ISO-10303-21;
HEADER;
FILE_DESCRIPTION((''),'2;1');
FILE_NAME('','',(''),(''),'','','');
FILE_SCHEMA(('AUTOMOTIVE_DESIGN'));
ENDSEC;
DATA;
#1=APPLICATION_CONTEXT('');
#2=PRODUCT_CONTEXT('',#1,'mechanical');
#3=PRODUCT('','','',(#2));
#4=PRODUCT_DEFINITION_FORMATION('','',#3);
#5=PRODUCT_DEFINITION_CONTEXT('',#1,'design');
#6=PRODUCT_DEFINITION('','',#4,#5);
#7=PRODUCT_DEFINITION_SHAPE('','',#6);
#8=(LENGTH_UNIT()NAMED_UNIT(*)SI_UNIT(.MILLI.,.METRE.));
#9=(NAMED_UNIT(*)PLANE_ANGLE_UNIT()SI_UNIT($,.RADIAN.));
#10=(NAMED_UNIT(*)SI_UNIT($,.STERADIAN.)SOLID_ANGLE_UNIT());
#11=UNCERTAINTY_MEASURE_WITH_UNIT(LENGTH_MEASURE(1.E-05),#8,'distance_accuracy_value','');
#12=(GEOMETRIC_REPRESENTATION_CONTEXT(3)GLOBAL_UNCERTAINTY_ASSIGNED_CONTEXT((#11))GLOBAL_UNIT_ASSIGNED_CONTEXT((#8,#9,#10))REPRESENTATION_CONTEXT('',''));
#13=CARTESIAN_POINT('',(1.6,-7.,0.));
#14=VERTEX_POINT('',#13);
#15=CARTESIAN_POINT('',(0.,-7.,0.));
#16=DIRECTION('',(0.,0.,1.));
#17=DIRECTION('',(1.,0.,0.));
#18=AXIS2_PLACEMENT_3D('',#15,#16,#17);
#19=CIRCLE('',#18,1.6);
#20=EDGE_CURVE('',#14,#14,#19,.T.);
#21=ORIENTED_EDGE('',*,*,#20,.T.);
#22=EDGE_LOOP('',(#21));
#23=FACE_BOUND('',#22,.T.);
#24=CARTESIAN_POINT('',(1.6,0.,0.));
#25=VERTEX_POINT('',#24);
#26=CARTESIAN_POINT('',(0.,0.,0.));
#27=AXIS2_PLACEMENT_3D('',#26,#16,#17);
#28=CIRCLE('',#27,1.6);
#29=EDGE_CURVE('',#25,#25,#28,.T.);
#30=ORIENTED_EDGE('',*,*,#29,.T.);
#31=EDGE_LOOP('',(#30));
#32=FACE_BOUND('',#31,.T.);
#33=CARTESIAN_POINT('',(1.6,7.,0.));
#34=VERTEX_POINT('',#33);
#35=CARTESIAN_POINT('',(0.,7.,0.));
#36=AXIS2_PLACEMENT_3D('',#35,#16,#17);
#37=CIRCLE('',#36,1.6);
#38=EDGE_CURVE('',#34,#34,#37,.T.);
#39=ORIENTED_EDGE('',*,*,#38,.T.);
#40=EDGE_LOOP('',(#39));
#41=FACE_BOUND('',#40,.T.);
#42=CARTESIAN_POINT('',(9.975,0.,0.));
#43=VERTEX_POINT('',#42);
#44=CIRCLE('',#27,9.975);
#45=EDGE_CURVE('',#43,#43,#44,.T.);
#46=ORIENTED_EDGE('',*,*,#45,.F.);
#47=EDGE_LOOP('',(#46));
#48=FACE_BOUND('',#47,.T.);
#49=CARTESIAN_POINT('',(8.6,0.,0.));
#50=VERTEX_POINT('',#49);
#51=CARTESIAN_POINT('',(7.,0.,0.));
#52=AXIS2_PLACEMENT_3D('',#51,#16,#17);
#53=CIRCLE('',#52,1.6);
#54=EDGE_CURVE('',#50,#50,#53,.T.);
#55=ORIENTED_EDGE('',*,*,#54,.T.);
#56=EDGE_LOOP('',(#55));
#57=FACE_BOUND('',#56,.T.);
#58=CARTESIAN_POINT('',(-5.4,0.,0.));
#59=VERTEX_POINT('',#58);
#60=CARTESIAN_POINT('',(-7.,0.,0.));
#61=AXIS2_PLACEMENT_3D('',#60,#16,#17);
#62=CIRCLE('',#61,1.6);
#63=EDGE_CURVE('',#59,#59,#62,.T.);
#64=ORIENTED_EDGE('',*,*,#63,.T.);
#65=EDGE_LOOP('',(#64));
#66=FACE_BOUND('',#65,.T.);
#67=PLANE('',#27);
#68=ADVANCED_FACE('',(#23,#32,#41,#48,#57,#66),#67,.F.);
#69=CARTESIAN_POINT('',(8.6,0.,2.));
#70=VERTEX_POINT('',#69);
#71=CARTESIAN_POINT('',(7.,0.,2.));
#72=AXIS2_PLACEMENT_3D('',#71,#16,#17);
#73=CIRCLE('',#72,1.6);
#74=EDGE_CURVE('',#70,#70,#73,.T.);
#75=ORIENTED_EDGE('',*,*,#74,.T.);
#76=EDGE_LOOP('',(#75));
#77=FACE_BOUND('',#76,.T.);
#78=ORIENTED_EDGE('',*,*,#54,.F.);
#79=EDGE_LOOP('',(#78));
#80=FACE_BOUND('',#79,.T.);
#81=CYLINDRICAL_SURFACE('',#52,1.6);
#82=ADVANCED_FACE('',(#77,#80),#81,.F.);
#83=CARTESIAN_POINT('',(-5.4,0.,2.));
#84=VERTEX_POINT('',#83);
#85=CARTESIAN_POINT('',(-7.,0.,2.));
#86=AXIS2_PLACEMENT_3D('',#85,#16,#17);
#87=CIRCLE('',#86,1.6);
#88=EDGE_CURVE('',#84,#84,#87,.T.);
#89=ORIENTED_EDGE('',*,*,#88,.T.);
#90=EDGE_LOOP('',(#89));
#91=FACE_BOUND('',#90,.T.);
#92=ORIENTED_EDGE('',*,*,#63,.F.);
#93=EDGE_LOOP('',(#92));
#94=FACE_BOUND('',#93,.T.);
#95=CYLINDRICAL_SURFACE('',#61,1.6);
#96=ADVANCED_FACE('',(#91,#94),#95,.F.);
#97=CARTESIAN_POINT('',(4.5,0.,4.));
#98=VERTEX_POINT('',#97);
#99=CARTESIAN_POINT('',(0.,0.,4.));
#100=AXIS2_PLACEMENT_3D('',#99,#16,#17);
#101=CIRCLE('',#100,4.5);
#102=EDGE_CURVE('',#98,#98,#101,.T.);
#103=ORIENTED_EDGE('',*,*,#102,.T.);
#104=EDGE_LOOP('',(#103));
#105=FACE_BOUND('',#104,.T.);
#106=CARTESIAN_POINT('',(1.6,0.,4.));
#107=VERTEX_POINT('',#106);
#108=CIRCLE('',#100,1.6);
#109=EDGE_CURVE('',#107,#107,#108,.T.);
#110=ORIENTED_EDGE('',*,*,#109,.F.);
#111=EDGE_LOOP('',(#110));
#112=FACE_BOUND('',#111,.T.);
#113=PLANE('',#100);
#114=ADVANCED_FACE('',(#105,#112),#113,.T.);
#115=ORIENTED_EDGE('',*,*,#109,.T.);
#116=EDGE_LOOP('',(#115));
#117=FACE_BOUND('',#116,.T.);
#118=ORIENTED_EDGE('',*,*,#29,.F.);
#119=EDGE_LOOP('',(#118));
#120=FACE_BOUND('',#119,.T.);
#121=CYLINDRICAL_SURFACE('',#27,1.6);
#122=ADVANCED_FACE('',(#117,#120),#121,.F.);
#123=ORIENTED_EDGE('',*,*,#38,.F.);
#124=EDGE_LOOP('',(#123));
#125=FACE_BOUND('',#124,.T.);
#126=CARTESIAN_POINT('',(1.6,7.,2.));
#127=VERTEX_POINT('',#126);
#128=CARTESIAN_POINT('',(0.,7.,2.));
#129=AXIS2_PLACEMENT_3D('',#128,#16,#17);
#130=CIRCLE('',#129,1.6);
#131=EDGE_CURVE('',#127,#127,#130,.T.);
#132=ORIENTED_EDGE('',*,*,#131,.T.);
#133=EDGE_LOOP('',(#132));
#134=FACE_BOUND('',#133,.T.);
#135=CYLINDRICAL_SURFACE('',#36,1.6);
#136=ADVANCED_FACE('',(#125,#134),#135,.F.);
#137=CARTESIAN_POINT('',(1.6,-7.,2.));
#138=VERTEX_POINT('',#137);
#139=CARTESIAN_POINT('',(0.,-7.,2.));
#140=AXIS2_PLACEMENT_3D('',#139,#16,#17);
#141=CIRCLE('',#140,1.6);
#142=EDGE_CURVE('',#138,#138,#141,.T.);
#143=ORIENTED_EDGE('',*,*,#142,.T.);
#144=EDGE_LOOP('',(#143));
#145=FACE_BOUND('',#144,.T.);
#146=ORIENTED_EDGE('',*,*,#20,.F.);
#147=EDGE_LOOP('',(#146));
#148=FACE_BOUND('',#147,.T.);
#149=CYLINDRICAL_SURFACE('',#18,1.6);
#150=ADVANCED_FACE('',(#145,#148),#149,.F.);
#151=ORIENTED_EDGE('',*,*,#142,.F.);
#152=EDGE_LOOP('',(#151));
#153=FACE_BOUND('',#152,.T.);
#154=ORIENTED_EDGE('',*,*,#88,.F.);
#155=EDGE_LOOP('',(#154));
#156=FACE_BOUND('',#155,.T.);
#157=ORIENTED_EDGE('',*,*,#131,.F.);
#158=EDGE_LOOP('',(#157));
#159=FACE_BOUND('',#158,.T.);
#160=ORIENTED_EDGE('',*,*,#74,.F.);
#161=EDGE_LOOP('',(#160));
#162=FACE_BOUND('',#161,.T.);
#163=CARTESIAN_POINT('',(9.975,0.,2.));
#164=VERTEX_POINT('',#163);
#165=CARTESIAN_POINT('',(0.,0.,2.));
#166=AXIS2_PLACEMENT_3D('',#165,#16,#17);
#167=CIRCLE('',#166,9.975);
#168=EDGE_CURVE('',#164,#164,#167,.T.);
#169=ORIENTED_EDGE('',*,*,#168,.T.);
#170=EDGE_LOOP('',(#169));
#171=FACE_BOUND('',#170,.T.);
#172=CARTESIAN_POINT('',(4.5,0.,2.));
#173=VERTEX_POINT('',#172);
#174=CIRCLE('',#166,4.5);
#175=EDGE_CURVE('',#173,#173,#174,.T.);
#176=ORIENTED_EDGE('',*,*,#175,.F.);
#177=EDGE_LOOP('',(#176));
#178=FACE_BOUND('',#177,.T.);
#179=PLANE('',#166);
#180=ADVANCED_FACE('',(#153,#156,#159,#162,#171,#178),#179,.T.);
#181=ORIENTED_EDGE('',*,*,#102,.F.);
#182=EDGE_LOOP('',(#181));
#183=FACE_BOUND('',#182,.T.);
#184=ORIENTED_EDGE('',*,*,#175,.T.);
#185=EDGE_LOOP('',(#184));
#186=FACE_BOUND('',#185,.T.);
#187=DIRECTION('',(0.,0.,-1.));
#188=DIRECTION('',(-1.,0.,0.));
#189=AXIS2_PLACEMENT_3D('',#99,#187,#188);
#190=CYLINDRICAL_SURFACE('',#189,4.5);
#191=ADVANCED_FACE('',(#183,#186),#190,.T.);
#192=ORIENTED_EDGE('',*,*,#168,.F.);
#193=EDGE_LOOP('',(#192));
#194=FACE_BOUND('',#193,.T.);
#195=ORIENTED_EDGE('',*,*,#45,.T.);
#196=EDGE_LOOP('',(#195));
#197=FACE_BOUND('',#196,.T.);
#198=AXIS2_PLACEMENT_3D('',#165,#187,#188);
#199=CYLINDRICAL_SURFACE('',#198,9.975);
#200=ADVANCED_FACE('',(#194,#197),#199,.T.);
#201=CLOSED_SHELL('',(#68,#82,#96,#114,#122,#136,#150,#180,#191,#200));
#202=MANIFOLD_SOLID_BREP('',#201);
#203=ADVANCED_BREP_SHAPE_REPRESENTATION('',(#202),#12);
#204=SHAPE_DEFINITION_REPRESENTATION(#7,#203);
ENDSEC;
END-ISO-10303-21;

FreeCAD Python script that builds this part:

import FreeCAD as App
import Part
import Sketcher
from FreeCAD import Vector
Q = App.Units.Quantity

doc = App.newDocument("Part")
body = doc.addObject("PartDesign::Body", "Body")

sketch1 = doc.addObject("Sketcher::SketchObject", "Sketch")
body.addObject(sketch1)
sketch1.AttachmentSupport = (doc.XY_Plane, [""])
sketch1.MapMode = "FlatFace"
sketch1.addGeometry(Part.Circle(Vector(0, 0, 0), Vector(0, 0, 1), 9.975), False)
sketch1.addConstraint([
    Sketcher.Constraint("Coincident", 0, 3, -1, 1),
    Sketcher.Constraint("Diameter", 0, Q("19.95 mm")),
])
pad1 = doc.addObject("PartDesign::Pad", "Pad")
body.addObject(pad1)
pad1.Profile = sketch1
pad1.Length = 2

sketch2 = doc.addObject("Sketcher::SketchObject", "Sketch001")
body.addObject(sketch2)
sketch2.AttachmentSupport = (doc.XY_Plane, [""])
sketch2.MapMode = "FlatFace"
sketch2.AttachmentOffset = App.Placement(Vector(0, 0, 2), App.Rotation())
sketch2.addGeometry(Part.Circle(Vector(0, 0, 0), Vector(0, 0, 1), 4.5), False)
sketch2.addConstraint([
    Sketcher.Constraint("Coincident", 0, 3, -1, 1),
    Sketcher.Constraint("Diameter", 0, Q("9 mm")),
])
pad2 = doc.addObject("PartDesign::Pad", "Pad001")
body.addObject(pad2)
pad2.Profile = sketch2
pad2.Length = 2

sketch3 = doc.addObject("Sketcher::SketchObject", "Sketch002")
body.addObject(sketch3)
sketch3.AttachmentSupport = (doc.XY_Plane, [""])
sketch3.MapMode = "FlatFace"
sketch3.AttachmentOffset = App.Placement(Vector(0, 0, 4), App.Rotation())
sketch3.addGeometry(Part.Circle(Vector(0, 0, 0), Vector(0, 0, 1), 1.6), False)
sketch3.addConstraint([
    Sketcher.Constraint("Coincident", 0, 3, -1, 1),
    Sketcher.Constraint("Diameter", 0, Q("3.2 mm")),
])
pocket1 = doc.addObject("PartDesign::Pocket", "Pocket")
body.addObject(pocket1)
pocket1.Profile = sketch3
pocket1.Type = "ThroughAll"

sketch4 = doc.addObject("Sketcher::SketchObject", "Sketch003")
body.addObject(sketch4)
sketch4.AttachmentSupport = (doc.XY_Plane, [""])
sketch4.MapMode = "FlatFace"
sketch4.AttachmentOffset = App.Placement(Vector(0, 0, 2), App.Rotation())
sketch4.addGeometry([
    Part.Circle(Vector(0, 7, 0), Vector(0, 0, 1), 1.6),
    Part.Circle(Vector(0, -7, 0), Vector(0, 0, 1), 1.6),
    Part.Circle(Vector(-7, 0, 0), Vector(0, 0, 1), 1.6),
    Part.Circle(Vector(7, 0, 0), Vector(0, 0, 1), 1.6),
], False)
sketch4.addConstraint([
    Sketcher.Constraint("Equal", 0, 1),
    Sketcher.Constraint("Equal", 1, 2),
    Sketcher.Constraint("Equal", 2, 3),
    Sketcher.Constraint("Symmetric", 0, 3, 1, 3, -1, 1),
    Sketcher.Constraint("Symmetric", 2, 3, 3, 3, -1, 1),
    Sketcher.Constraint("PointOnObject", 0, 3, -2),
    Sketcher.Constraint("PointOnObject", 2, 3, -1),
    Sketcher.Constraint("Diameter", 0, Q("3.2 mm")),
    Sketcher.Constraint("DistanceY", -1, 1, 0, 3, Q("7 mm")),
    Sketcher.Constraint("DistanceX", 2, 3, -1, 1, Q("7 mm")),
])
pocket2 = doc.addObject("PartDesign::Pocket", "Pocket001")
body.addObject(pocket2)
pocket2.Profile = sketch4
pocket2.Type = "ThroughAll"

doc.recompute()
